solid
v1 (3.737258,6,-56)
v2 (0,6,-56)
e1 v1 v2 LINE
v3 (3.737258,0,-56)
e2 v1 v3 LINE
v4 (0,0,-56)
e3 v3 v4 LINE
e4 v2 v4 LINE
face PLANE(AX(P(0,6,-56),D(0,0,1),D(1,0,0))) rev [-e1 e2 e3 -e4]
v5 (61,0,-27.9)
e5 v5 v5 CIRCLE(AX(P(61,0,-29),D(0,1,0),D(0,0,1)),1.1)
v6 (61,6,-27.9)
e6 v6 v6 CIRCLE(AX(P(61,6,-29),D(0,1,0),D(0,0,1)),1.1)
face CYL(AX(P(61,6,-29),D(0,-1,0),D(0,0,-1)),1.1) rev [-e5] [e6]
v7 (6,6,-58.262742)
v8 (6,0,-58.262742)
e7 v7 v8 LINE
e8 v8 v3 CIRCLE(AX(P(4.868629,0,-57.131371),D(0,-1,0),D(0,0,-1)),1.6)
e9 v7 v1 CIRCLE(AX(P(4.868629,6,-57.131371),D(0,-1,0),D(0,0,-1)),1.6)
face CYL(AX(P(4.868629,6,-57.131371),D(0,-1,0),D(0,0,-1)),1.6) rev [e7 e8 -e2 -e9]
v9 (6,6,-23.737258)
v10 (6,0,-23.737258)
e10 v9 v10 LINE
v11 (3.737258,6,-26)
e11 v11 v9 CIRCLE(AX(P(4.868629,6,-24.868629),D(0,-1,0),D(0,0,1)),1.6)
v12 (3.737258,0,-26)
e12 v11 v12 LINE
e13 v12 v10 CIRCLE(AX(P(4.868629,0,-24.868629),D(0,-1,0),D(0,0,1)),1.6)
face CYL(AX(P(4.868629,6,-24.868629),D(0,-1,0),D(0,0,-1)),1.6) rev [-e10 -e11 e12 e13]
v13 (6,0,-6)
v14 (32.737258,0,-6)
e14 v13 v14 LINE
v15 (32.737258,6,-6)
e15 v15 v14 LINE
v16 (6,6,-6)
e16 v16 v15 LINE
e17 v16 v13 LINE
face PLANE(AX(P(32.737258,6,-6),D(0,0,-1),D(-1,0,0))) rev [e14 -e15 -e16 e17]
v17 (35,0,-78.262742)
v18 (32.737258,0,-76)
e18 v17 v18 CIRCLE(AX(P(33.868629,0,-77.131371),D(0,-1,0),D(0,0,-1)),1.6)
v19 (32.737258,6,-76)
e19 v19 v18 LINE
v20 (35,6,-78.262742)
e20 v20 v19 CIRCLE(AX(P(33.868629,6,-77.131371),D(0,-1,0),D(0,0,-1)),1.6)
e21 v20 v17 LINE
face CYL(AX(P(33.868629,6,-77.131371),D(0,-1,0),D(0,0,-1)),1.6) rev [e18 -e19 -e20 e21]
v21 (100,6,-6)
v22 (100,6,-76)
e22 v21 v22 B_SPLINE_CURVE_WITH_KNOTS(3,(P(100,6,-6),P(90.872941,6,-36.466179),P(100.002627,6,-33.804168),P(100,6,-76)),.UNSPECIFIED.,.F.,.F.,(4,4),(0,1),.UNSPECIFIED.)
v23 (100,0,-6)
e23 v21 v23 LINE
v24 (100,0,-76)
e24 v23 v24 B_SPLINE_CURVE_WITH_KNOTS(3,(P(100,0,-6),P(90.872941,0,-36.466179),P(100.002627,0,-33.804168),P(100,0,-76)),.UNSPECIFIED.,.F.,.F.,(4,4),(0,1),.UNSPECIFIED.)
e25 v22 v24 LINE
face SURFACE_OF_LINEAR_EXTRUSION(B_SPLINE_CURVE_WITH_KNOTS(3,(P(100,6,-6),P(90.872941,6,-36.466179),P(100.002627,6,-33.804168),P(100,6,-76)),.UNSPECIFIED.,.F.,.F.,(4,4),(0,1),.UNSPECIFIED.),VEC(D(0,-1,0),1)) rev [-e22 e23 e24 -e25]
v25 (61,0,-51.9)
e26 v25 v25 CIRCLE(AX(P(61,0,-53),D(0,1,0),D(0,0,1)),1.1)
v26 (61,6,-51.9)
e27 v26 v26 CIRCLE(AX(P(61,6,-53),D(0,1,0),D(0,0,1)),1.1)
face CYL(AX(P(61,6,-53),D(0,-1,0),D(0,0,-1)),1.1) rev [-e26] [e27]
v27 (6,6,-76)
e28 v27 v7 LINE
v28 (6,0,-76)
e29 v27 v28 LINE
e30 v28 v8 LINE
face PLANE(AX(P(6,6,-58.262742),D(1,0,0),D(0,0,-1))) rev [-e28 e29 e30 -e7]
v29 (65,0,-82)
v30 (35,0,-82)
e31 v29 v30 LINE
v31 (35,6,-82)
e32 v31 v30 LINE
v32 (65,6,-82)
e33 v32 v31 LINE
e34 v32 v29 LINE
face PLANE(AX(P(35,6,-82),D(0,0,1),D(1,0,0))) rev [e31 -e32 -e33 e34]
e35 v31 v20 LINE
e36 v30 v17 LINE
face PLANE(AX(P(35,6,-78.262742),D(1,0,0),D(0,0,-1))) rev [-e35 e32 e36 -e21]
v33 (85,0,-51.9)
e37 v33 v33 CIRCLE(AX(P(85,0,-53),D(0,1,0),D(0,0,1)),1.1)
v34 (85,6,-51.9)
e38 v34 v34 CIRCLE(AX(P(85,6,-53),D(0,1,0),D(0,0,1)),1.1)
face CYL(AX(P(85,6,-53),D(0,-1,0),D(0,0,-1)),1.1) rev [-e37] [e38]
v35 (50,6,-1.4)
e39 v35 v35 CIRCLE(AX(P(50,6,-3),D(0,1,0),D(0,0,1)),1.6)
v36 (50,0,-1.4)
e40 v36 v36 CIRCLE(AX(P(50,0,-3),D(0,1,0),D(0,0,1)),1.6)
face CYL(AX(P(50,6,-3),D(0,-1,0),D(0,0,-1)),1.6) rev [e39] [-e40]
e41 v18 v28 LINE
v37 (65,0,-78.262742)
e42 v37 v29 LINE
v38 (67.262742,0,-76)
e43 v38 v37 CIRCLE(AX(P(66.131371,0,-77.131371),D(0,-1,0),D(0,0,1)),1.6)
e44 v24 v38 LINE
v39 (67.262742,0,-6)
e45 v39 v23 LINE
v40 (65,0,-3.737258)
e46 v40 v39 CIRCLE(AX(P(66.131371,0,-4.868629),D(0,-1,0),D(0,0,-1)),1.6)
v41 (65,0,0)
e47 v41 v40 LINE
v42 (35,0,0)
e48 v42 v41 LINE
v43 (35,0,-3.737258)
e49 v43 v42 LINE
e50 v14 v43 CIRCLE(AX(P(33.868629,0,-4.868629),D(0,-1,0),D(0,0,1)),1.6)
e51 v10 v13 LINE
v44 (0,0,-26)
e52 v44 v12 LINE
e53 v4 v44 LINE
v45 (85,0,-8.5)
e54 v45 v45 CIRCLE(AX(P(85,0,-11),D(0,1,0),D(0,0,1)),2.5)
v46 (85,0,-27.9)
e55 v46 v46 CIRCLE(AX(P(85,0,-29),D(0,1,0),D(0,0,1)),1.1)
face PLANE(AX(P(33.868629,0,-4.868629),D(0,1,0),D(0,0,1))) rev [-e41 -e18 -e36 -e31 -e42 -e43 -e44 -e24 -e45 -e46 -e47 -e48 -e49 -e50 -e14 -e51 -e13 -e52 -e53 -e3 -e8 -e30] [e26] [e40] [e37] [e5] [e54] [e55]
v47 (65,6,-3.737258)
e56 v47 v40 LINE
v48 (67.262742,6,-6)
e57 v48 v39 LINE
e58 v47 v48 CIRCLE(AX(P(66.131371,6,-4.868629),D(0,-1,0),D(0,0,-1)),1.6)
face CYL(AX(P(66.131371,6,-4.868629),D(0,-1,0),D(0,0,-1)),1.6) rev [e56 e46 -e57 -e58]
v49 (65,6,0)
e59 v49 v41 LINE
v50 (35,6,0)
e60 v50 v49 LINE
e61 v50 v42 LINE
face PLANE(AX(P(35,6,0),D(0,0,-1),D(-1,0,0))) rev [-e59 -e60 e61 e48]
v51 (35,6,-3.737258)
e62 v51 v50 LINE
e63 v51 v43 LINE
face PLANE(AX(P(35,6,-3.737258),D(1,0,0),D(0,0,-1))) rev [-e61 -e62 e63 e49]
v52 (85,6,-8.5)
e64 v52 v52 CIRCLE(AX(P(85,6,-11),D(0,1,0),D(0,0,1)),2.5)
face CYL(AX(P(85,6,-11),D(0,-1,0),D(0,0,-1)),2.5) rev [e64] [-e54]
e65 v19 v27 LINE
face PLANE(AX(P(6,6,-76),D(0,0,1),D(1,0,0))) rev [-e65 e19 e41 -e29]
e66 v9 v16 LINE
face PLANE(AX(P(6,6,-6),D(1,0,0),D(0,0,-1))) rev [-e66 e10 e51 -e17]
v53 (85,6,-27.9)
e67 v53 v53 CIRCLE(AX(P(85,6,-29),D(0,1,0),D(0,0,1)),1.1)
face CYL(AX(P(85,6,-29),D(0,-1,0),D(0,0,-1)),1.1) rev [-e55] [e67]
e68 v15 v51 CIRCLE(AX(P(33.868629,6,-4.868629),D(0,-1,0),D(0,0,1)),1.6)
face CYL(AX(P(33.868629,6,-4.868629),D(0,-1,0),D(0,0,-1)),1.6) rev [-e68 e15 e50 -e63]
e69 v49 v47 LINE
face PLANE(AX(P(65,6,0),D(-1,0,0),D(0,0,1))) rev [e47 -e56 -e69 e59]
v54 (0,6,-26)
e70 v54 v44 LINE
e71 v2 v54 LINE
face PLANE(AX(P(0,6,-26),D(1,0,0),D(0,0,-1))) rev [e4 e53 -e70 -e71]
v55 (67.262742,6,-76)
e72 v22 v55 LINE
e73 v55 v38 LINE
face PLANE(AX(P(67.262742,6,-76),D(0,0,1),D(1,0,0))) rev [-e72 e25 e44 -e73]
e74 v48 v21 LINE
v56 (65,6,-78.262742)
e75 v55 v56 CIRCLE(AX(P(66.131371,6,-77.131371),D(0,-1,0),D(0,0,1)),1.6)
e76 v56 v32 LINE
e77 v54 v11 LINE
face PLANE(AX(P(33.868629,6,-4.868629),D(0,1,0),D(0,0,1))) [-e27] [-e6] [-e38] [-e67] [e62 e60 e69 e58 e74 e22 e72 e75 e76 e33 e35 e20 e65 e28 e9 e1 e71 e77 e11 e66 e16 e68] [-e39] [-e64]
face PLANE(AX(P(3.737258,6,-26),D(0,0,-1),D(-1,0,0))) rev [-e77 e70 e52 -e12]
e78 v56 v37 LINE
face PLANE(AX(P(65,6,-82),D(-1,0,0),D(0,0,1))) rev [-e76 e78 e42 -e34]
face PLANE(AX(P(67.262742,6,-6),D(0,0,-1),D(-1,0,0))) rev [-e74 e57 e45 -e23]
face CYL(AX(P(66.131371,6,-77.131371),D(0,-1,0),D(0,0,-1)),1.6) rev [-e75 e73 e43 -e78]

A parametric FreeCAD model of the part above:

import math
import FreeCAD as App
import Part
import Sketcher

doc = App.newDocument("Part")
body = doc.addObject("PartDesign::Body", "Body")

# Sketch on XZ plane
sketch1 = body.newObject("Sketcher::SketchObject", "Sketch")
sketch1.AttachmentSupport = (doc.getObject("XZ_Plane"), [""])
sketch1.MapMode = "FlatFace"
sketch1.addGeometry([
    Part.LineSegment(App.Vector(35, -3.737258, 0), App.Vector(35, 0, 0)),  # 0
    Part.LineSegment(App.Vector(35, 0, 0), App.Vector(65, 0, 0)),  # 1
    Part.LineSegment(App.Vector(65, 0, 0), App.Vector(65, -3.737258, 0)),  # 2
    Part.ArcOfCircle(Part.Circle(App.Vector(66.131371, -4.868629, 0), App.Vector(0, 0, 1), 1.6), math.radians(135), math.radians(315)),  # 3
    Part.LineSegment(App.Vector(67.262742, -6, 0), App.Vector(100, -6, 0)),  # 4
    Part.BSplineCurve([App.Vector(100, -76, 0), App.Vector(100.002627, -33.804168, 0), App.Vector(90.872941, -36.466179, 0), App.Vector(100, -6, 0)], [4, 4], [0, 1], False, 3, [1, 1, 1, 1], False),  # 5
    Part.LineSegment(App.Vector(100, -76, 0), App.Vector(67.262742, -76, 0)),  # 6
    Part.ArcOfCircle(Part.Circle(App.Vector(66.131371, -77.131371, 0), App.Vector(0, 0, 1), 1.6), math.radians(45), math.radians(225)),  # 7
    Part.LineSegment(App.Vector(65, -78.262742, 0), App.Vector(65, -82, 0)),  # 8
    Part.LineSegment(App.Vector(65, -82, 0), App.Vector(35, -82, 0)),  # 9
    Part.LineSegment(App.Vector(35, -82, 0), App.Vector(35, -78.262742, 0)),  # 10
    Part.ArcOfCircle(Part.Circle(App.Vector(33.868629, -77.131371, 0), App.Vector(0, 0, 1), 1.6), math.radians(-45), math.radians(135)),  # 11
    Part.LineSegment(App.Vector(32.737258, -76, 0), App.Vector(6, -76, 0)),  # 12
    Part.LineSegment(App.Vector(6, -76, 0), App.Vector(6, -58.262742, 0)),  # 13
    Part.ArcOfCircle(Part.Circle(App.Vector(4.868629, -57.131371, 0), App.Vector(0, 0, 1), 1.6), math.radians(-45), math.radians(135)),  # 14
    Part.LineSegment(App.Vector(3.737258, -56, 0), App.Vector(0, -56, 0)),  # 15
    Part.LineSegment(App.Vector(0, -56, 0), App.Vector(0, -26, 0)),  # 16
    Part.LineSegment(App.Vector(0, -26, 0), App.Vector(3.737258, -26, 0)),  # 17
    Part.ArcOfCircle(Part.Circle(App.Vector(4.868629, -24.868629, 0), App.Vector(0, 0, 1), 1.6), math.radians(-135), math.radians(45)),  # 18
    Part.LineSegment(App.Vector(6, -23.737258, 0), App.Vector(6, -6, 0)),  # 19
    Part.LineSegment(App.Vector(6, -6, 0), App.Vector(32.737258, -6, 0)),  # 20
    Part.ArcOfCircle(Part.Circle(App.Vector(33.868629, -4.868629, 0), App.Vector(0, 0, 1), 1.6), math.radians(-135), math.radians(45)),  # 21
    Part.Circle(App.Vector(50, -3, 0), App.Vector(0, 0, 1), 1.6),  # 22
    Part.Circle(App.Vector(85, -11, 0), App.Vector(0, 0, 1), 2.5),  # 23
    Part.Circle(App.Vector(61, -29, 0), App.Vector(0, 0, 1), 1.1),  # 24
    Part.Circle(App.Vector(61, -53, 0), App.Vector(0, 0, 1), 1.1),  # 25
    Part.Circle(App.Vector(85, -29, 0), App.Vector(0, 0, 1), 1.1),  # 26
    Part.Circle(App.Vector(85, -53, 0), App.Vector(0, 0, 1), 1.1),  # 27
], False)
sketch1.addConstraint([
    Sketcher.Constraint("Block", 5),
    Sketcher.Constraint("Coincident", 0, 2, 1, 1),
    Sketcher.Constraint("Coincident", 1, 2, 2, 1),
    Sketcher.Constraint("Coincident", 2, 2, 3, 1),
    Sketcher.Constraint("Coincident", 3, 2, 4, 1),
    Sketcher.Constraint("Coincident", 4, 2, 5, 2),
    Sketcher.Constraint("Coincident", 5, 1, 6, 1),
    Sketcher.Constraint("Coincident", 6, 2, 7, 1),
    Sketcher.Constraint("Coincident", 7, 2, 8, 1),
    Sketcher.Constraint("Coincident", 8, 2, 9, 1),
    Sketcher.Constraint("Coincident", 9, 2, 10, 1),
    Sketcher.Constraint("Coincident", 10, 2, 11, 1),
    Sketcher.Constraint("Coincident", 11, 2, 12, 1),
    Sketcher.Constraint("Coincident", 12, 2, 13, 1),
    Sketcher.Constraint("Coincident", 13, 2, 14, 1),
    Sketcher.Constraint("Coincident", 14, 2, 15, 1),
    Sketcher.Constraint("Coincident", 15, 2, 16, 1),
    Sketcher.Constraint("Coincident", 16, 2, 17, 1),
    Sketcher.Constraint("Coincident", 17, 2, 18, 1),
    Sketcher.Constraint("Coincident", 18, 2, 19, 1),
    Sketcher.Constraint("Coincident", 19, 2, 20, 1),
    Sketcher.Constraint("Coincident", 20, 2, 21, 1),
    Sketcher.Constraint("Coincident", 21, 2, 0, 1),
    Sketcher.Constraint("Vertical", 0),
    Sketcher.Constraint("Horizontal", 1),
    Sketcher.Constraint("Vertical", 2),
    Sketcher.Constraint("Horizontal", 4),
    Sketcher.Constraint("Horizontal", 6),
    Sketcher.Constraint("Vertical", 8),
    Sketcher.Constraint("Horizontal", 9),
    Sketcher.Constraint("Vertical", 10),
    Sketcher.Constraint("Horizontal", 12),
    Sketcher.Constraint("Vertical", 13),
    Sketcher.Constraint("Horizontal", 15),
    Sketcher.Constraint("Vertical", 16),
    Sketcher.Constraint("Horizontal", 17),
    Sketcher.Constraint("Vertical", 19),
    Sketcher.Constraint("Horizontal", 20),
    Sketcher.Constraint("Equal", 3, 7),
    Sketcher.Constraint("Equal", 7, 11),
    Sketcher.Constraint("Equal", 11, 14),
    Sketcher.Constraint("Equal", 14, 18),
    Sketcher.Constraint("Equal", 18, 21),
    Sketcher.Constraint("Equal", 21, 22),
    Sketcher.Constraint("Equal", 24, 25),
    Sketcher.Constraint("Equal", 25, 26),
    Sketcher.Constraint("Equal", 26, 27),
    Sketcher.Constraint("PointOnObject", 0, 2, -1),
    Sketcher.Constraint("PointOnObject", 15, 2, -2),
    Sketcher.Constraint("Horizontal", 7, 3, 11, 3),
    Sketcher.Constraint("Horizontal", 3, 3, 21, 3),
    Sketcher.Constraint("Horizontal", 24, 3, 26, 3),
    Sketcher.Constraint("Horizontal", 25, 3, 27, 3),
    Sketcher.Constraint("Horizontal", 7, 2, 10, 2),
    Sketcher.Constraint("Horizontal", 6, 2, 11, 2),
    Sketcher.Constraint("Horizontal", 4, 2, 19, 2),
    Sketcher.Constraint("Horizontal", 2, 2, 21, 2),
    Sketcher.Constraint("Vertical", 3, 3, 7, 3),
    Sketcher.Constraint("Vertical", 14, 3, 18, 3),
    Sketcher.Constraint("Vertical", 11, 3, 21, 3),
    Sketcher.Constraint("Vertical", 24, 3, 25, 3),
    Sketcher.Constraint("Vertical", 23, 3, 26, 3),
    Sketcher.Constraint("Vertical", 26, 3, 27, 3),
    Sketcher.Constraint("Vertical", 3, 2, 6, 2),
    Sketcher.Constraint("Vertical", 2, 2, 7, 2),
    Sketcher.Constraint("Vertical", 14, 2, 17, 2),
    Sketcher.Constraint("Vertical", 13, 2, 18, 2),
    Sketcher.Constraint("Equal", 17, 0),
    Sketcher.Constraint("Equal", 2, 8),
    Sketcher.Constraint("Equal", 9, 16),
    Sketcher.Constraint("Equal", 13, 19),
    Sketcher.Constraint("Diameter", 23, 5.0),
    Sketcher.Constraint("Diameter", 22, 3.2),
    Sketcher.Constraint("Diameter", 24, 2.2),
    Sketcher.Constraint("DistanceX", 1, 1, 1, 2, 30.0),
    Sketcher.Constraint("DistanceX", -1, 1, 22, 3, 50.0),
    Sketcher.Constraint("DistanceY", 22, 3, -1, 1, 3.0),
    Sketcher.Constraint("DistanceX", -1, 1, 23, 3, 85.0),
    Sketcher.Constraint("DistanceY", 23, 3, -1, 1, 11.0),
    Sketcher.Constraint("DistanceX", -1, 1, 24, 3, 61.0),
    Sketcher.Constraint("DistanceY", 24, 3, -1, 1, 29.0),
    Sketcher.Constraint("DistanceY", 25, 3, -1, 1, 53.0),
    Sketcher.Constraint("DistanceX", -1, 1, 0, 2, 35.0),
    Sketcher.Constraint("DistanceX", -1, 1, 12, 2, 6.0),
    Sketcher.Constraint("DistanceX", 14, 3, 11, 3, 29.0),
    Sketcher.Constraint("DistanceY", 11, 3, 14, 3, 20.0),
    Sketcher.Constraint("DistanceX", -1, 1, 3, 3, 66.131371),
])
pad1 = body.newObject("PartDesign::Pad", "Pad")
pad1.Profile = sketch1
pad1.Length = 6
pad1.Reversed = True

doc.recompute()
